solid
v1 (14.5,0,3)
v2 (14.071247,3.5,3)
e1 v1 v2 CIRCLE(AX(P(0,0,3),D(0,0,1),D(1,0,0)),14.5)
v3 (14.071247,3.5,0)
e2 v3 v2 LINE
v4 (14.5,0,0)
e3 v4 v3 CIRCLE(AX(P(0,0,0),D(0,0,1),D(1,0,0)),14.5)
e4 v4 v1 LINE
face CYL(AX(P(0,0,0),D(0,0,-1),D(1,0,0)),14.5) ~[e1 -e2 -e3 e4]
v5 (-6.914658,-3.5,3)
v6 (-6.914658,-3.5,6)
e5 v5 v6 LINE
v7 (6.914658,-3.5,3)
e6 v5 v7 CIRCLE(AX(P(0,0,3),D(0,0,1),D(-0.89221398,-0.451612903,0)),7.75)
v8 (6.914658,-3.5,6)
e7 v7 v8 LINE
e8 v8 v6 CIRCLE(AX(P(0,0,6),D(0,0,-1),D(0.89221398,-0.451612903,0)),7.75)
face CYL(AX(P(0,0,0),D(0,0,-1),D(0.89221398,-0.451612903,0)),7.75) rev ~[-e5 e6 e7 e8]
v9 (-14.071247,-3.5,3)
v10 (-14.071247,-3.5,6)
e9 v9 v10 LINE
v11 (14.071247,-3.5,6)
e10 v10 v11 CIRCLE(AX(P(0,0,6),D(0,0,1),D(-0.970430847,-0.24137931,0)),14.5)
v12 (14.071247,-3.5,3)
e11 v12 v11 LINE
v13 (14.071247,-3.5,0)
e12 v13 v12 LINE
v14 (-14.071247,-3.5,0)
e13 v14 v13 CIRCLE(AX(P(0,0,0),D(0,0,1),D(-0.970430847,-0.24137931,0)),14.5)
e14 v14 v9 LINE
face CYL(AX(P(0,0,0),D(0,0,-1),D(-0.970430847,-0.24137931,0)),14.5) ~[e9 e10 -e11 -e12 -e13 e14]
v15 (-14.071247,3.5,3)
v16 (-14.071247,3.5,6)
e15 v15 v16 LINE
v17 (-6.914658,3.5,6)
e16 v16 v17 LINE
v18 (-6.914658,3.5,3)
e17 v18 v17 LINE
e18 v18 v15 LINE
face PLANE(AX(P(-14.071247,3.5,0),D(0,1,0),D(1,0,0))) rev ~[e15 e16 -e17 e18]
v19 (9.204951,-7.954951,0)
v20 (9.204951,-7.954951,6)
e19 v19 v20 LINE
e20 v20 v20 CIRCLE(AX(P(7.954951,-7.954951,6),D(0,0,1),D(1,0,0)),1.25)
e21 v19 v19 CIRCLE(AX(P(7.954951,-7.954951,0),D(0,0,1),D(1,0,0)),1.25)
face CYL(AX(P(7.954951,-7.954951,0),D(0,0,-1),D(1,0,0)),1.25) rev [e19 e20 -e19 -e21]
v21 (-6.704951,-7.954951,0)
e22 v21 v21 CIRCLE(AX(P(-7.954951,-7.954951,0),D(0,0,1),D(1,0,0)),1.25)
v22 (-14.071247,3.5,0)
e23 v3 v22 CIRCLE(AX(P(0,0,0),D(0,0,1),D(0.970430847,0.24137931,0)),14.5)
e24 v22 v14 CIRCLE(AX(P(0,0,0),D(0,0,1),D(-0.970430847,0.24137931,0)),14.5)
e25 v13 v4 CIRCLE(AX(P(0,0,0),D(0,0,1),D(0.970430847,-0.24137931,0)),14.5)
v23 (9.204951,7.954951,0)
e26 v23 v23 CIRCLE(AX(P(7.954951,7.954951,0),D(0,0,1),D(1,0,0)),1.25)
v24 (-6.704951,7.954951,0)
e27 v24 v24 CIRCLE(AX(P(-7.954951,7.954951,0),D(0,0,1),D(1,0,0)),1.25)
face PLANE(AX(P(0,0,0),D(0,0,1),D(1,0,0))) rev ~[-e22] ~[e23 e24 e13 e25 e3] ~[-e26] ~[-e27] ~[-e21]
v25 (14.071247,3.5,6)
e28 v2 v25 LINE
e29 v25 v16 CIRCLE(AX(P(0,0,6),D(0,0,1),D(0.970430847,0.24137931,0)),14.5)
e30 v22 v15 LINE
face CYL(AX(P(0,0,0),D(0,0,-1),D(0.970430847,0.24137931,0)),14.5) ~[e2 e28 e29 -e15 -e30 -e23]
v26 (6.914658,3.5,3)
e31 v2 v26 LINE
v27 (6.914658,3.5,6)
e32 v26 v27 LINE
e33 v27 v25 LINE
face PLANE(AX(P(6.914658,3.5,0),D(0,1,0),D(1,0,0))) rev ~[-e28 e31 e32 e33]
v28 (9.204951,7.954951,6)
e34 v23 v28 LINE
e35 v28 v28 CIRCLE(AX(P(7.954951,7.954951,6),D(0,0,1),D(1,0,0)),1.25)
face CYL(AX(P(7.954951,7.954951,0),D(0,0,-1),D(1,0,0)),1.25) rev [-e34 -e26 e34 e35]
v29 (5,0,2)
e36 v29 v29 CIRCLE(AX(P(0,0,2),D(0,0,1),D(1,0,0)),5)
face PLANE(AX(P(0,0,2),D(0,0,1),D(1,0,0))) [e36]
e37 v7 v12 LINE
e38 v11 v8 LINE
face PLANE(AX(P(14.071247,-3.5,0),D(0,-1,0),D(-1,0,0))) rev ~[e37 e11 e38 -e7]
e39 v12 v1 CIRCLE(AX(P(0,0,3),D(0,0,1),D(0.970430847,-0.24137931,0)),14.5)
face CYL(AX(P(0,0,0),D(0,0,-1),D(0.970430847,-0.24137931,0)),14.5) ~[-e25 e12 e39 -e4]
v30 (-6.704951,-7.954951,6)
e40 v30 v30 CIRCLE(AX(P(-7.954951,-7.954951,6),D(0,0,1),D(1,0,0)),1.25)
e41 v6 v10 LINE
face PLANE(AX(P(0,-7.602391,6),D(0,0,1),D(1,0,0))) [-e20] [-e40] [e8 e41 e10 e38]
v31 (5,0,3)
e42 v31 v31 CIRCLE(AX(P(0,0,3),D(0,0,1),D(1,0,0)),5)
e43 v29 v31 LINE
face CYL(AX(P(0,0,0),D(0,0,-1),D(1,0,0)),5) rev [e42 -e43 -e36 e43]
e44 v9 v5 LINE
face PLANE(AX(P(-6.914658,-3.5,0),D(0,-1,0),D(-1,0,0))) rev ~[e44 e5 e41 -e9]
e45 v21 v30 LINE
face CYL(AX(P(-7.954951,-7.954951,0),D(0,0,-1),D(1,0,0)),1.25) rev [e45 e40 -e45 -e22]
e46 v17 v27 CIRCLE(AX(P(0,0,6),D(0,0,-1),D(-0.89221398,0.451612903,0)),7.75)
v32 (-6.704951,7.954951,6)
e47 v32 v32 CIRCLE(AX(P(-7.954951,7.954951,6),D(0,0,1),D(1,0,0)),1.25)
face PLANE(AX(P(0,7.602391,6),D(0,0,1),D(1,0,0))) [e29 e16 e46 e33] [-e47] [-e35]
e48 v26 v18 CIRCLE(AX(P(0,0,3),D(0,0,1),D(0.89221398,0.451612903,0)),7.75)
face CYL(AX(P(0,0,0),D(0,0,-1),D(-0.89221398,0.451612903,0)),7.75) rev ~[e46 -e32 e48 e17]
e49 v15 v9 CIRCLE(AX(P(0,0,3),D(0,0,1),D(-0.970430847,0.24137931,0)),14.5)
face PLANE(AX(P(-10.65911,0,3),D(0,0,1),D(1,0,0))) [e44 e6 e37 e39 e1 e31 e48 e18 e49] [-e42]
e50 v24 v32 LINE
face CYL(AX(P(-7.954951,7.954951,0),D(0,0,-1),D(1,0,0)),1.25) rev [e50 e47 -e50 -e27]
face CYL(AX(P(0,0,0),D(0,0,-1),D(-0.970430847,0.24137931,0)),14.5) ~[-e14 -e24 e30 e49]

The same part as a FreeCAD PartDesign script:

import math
import FreeCAD as App
import Part
import Sketcher
from FreeCAD import Vector
Q = App.Units.Quantity

doc = App.newDocument("Part")
params = doc.addObject("Spreadsheet::Sheet", "Params")
for row, (alias, value) in enumerate([
    ("sketch1_diameter", "10 mm"),
    ("sketch1_radius", "14.5 mm"),
    ("sketch1_radius2", "7.75 mm"),
    ("pad1_length", "3 mm"),
    ("sketch2_diameter", "2.5 mm"),
    ("sketch2_radius", "14.5 mm"),
    ("sketch2_radius2", "7.75 mm"),
    ("pad2_length", "6 mm"),
    ("sketch3_diameter", "10 mm"),
    ("pad3_length", "2 mm"),
], start=1):
    params.set(f"A{row}", alias)
    params.set(f"B{row}", "=" + value)
    params.setAlias(f"B{row}", alias)

body = doc.addObject("PartDesign::Body", "Body")

sketch1 = doc.addObject("Sketcher::SketchObject", "Sketch")
body.addObject(sketch1)
sketch1.AttachmentSupport = (doc.XY_Plane, [""])
sketch1.MapMode = "FlatFace"
sketch1.addGeometry(Part.LineSegment(Vector(-6.9, 3.5, 0), Vector(-14.1, 3.5, 0)), False)
sketch1.addGeometry(Part.ArcOfCircle(Part.Circle(Vector(0, 0, 0), Vector(0, 0, 1), 14.5), math.radians(166), math.radians(194)), False)
sketch1.addGeometry(Part.LineSegment(Vector(-14.1, -3.5, 0), Vector(-6.9, -3.5, 0)), False)
sketch1.addGeometry(Part.ArcOfCircle(Part.Circle(Vector(0, 0, 0), Vector(0, 0, 1), 7.8), math.radians(-153), math.radians(-27)), False)
sketch1.addGeometry(Part.LineSegment(Vector(6.9, -3.5, 0), Vector(14.1, -3.5, 0)), False)
sketch1.addGeometry(Part.ArcOfCircle(Part.Circle(Vector(0, 0, 0), Vector(0, 0, 1), 14.5), math.radians(-13.97), math.radians(0)), False)
sketch1.addGeometry(Part.ArcOfCircle(Part.Circle(Vector(0, 0, 0), Vector(0, 0, 1), 14.5), math.radians(0), math.radians(13.97)), False)
sketch1.addGeometry(Part.LineSegment(Vector(14.1, 3.5, 0), Vector(6.9, 3.5, 0)), False)
sketch1.addGeometry(Part.ArcOfCircle(Part.Circle(Vector(0, 0, 0), Vector(0, 0, 1), 7.8), math.radians(27), math.radians(153)), False)
sketch1.addGeometry(Part.Circle(Vector(0, 0, 0), Vector(0, 0, 1), 5), False)
sketch1.addConstraint(Sketcher.Constraint("Coincident", 0, 2, 1, 1))
sketch1.addConstraint(Sketcher.Constraint("Coincident", 1, 2, 2, 1))
sketch1.addConstraint(Sketcher.Constraint("Coincident", 2, 2, 3, 1))
sketch1.addConstraint(Sketcher.Constraint("Coincident", 3, 2, 4, 1))
sketch1.addConstraint(Sketcher.Constraint("Coincident", 4, 2, 5, 1))
sketch1.addConstraint(Sketcher.Constraint("Tangent", 5, 2, 6, 1))
sketch1.addConstraint(Sketcher.Constraint("Coincident", 6, 2, 7, 1))
sketch1.addConstraint(Sketcher.Constraint("Coincident", 7, 2, 8, 1))
sketch1.addConstraint(Sketcher.Constraint("Coincident", 8, 2, 0, 1))
sketch1.addConstraint(Sketcher.Constraint("Horizontal", 0))
sketch1.addConstraint(Sketcher.Constraint("Horizontal", 2))
sketch1.addConstraint(Sketcher.Constraint("Horizontal", 4))
sketch1.addConstraint(Sketcher.Constraint("Horizontal", 7))
sketch1.addConstraint(Sketcher.Constraint("Coincident", 1, 3, -1, 1))
sketch1.addConstraint(Sketcher.Constraint("Coincident", 3, 3, -1, 1))
sketch1.addConstraint(Sketcher.Constraint("Coincident", 5, 3, -1, 1))
sketch1.addConstraint(Sketcher.Constraint("Coincident", 8, 3, -1, 1))
sketch1.addConstraint(Sketcher.Constraint("Coincident", 9, 3, -1, 1))
sketch1.addConstraint(Sketcher.Constraint("Equal", 1, 5))
sketch1.addConstraint(Sketcher.Constraint("Equal", 5, 6))
sketch1.addConstraint(Sketcher.Constraint("Equal", 3, 8))
sketch1.addConstraint(Sketcher.Constraint("PointOnObject", 5, 2, -1))
sketch1.addConstraint(Sketcher.Constraint("Horizontal", 2, 2, 3, 2))
sketch1.addConstraint(Sketcher.Constraint("Horizontal", 0, 2, 6, 2))
sketch1.addConstraint(Sketcher.Constraint("Vertical", 0, 2, 1, 2))
sketch1.addConstraint(Sketcher.Constraint("Diameter", 9, Q("10 mm")))
sketch1.addConstraint(Sketcher.Constraint("Radius", 1, Q("14.5 mm")))
sketch1.addConstraint(Sketcher.Constraint("Radius", 3, Q("7.75 mm")))
sketch1.addConstraint(Sketcher.Constraint("DistanceY", 1, 2, 0, 2, Q("7 mm")))
sketch1.setExpression("Constraints[25]", "Params.sketch1_diameter")
sketch1.setExpression("Constraints[26]", "Params.sketch1_radius")
sketch1.setExpression("Constraints[27]", "Params.sketch1_radius2")
pad1 = doc.addObject("PartDesign::Pad", "Pad")
body.addObject(pad1)
pad1.Profile = sketch1
pad1.setExpression("Length", "Params.pad1_length")

sketch2 = doc.addObject("Sketcher::SketchObject", "Sketch001")
body.addObject(sketch2)
sketch2.AttachmentSupport = (doc.XY_Plane, [""])
sketch2.MapMode = "FlatFace"
sketch2.addGeometry(Part.LineSegment(Vector(6.9, 3.5, 0), Vector(14.1, 3.5, 0)), False)
sketch2.addGeometry(Part.ArcOfCircle(Part.Circle(Vector(0, 0, 0), Vector(0, 0, 1), 14.5), math.radians(14), math.radians(166)), False)
sketch2.addGeometry(Part.LineSegment(Vector(-14.1, 3.5, 0), Vector(-6.9, 3.5, 0)), False)
sketch2.addGeometry(Part.ArcOfCircle(Part.Circle(Vector(0, 0, 0), Vector(0, 0, 1), 7.8), math.radians(27), math.radians(153)), False)
sketch2.addGeometry(Part.Circle(Vector(-8, 8, 0), Vector(0, 0, 1), 1.2), False)
sketch2.addGeometry(Part.Circle(Vector(8, 8, 0), Vector(0, 0, 1), 1.2), False)
sketch2.addGeometry(Part.ArcOfCircle(Part.Circle(Vector(0, 0, 0), Vector(0, 0, 1), 14.5), math.radians(-166), math.radians(-14)), False)
sketch2.addGeometry(Part.LineSegment(Vector(14.1, -3.5, 0), Vector(6.9, -3.5, 0)), False)
sketch2.addGeometry(Part.ArcOfCircle(Part.Circle(Vector(0, 0, 0), Vector(0, 0, 1), 7.8), math.radians(-153), math.radians(-27)), False)
sketch2.addGeometry(Part.LineSegment(Vector(-6.9, -3.5, 0), Vector(-14.1, -3.5, 0)), False)
sketch2.addGeometry(Part.Circle(Vector(-8, -8, 0), Vector(0, 0, 1), 1.2), False)
sketch2.addGeometry(Part.Circle(Vector(8, -8, 0), Vector(0, 0, 1), 1.2), False)
sketch2.addConstraint(Sketcher.Constraint("Coincident", 0, 2, 1, 1))
sketch2.addConstraint(Sketcher.Constraint("Coincident", 1, 2, 2, 1))
sketch2.addConstraint(Sketcher.Constraint("Coincident", 2, 2, 3, 2))
sketch2.addConstraint(Sketcher.Constraint("Coincident", 3, 1, 0, 1))
sketch2.addConstraint(Sketcher.Constraint("Coincident", 6, 2, 7, 1))
sketch2.addConstraint(Sketcher.Constraint("Coincident", 7, 2, 8, 2))
sketch2.addConstraint(Sketcher.Constraint("Coincident", 8, 1, 9, 1))
sketch2.addConstraint(Sketcher.Constraint("Coincident", 9, 2, 6, 1))
sketch2.addConstraint(Sketcher.Constraint("Horizontal", 0))
sketch2.addConstraint(Sketcher.Constraint("Horizontal", 2))
sketch2.addConstraint(Sketcher.Constraint("Horizontal", 7))
sketch2.addConstraint(Sketcher.Constraint("Horizontal", 9))
sketch2.addConstraint(Sketcher.Constraint("Coincident", 1, 3, -1, 1))
sketch2.addConstraint(Sketcher.Constraint("Coincident", 3, 3, -1, 1))
sketch2.addConstraint(Sketcher.Constraint("Coincident", 6, 3, -1, 1))
sketch2.addConstraint(Sketcher.Constraint("Coincident", 8, 3, -1, 1))
sketch2.addConstraint(Sketcher.Constraint("Equal", 4, 5))
sketch2.addConstraint(Sketcher.Constraint("Equal", 1, 6))
sketch2.addConstraint(Sketcher.Constraint("Equal", 3, 8))
sketch2.addConstraint(Sketcher.Constraint("Equal", 5, 10))
sketch2.addConstraint(Sketcher.Constraint("Equal", 10, 11))
sketch2.addConstraint(Sketcher.Constraint("Symmetric", 5, 3, 10, 3, -1, 1))
sketch2.addConstraint(Sketcher.Constraint("Symmetric", 4, 3, 11, 3, -1, 1))
sketch2.addConstraint(Sketcher.Constraint("Symmetric", 4, 3, 5, 3, -2))
sketch2.addConstraint(Sketcher.Constraint("Horizontal", 0, 2, 1, 2))
sketch2.addConstraint(Sketcher.Constraint("Horizontal", 7, 2, 8, 1))
sketch2.addConstraint(Sketcher.Constraint("Vertical", 0, 2, 6, 2))
sketch2.addConstraint(Sketcher.Constraint("Diameter", 4, Q("2.5 mm")))
sketch2.addConstraint(Sketcher.Constraint("Radius", 1, Q("14.5 mm")))
sketch2.addConstraint(Sketcher.Constraint("Radius", 3, Q("7.75 mm")))
sketch2.addConstraint(Sketcher.Constraint("DistanceY", 6, 2, 0, 2, Q("7 mm")))
sketch2.addConstraint(Sketcher.Constraint("DistanceX", 4, 3, -1, 1, Q("7.954951 mm")))
sketch2.addConstraint(Sketcher.Constraint("DistanceY", -1, 1, 4, 3, Q("7.954951 mm")))
sketch2.setExpression("Constraints[27]", "Params.sketch2_diameter")
sketch2.setExpression("Constraints[28]", "Params.sketch2_radius")
sketch2.setExpression("Constraints[29]", "Params.sketch2_radius2")
pad2 = doc.addObject("PartDesign::Pad", "Pad001")
body.addObject(pad2)
pad2.Profile = sketch2
pad2.setExpression("Length", "Params.pad2_length")

sketch3 = doc.addObject("Sketcher::SketchObject", "Sketch002")
body.addObject(sketch3)
sketch3.AttachmentSupport = (doc.XY_Plane, [""])
sketch3.MapMode = "FlatFace"
sketch3.addGeometry(Part.Circle(Vector(0, 0, 0), Vector(0, 0, 1), 5), False)
sketch3.addConstraint(Sketcher.Constraint("Coincident", 0, 3, -1, 1))
sketch3.addConstraint(Sketcher.Constraint("Diameter", 0, Q("10 mm")))
sketch3.setExpression("Constraints[1]", "Params.sketch3_diameter")
pad3 = doc.addObject("PartDesign::Pad", "Pad002")
body.addObject(pad3)
pad3.Profile = sketch3
pad3.setExpression("Length", "Params.pad3_length")

doc.recompute()
